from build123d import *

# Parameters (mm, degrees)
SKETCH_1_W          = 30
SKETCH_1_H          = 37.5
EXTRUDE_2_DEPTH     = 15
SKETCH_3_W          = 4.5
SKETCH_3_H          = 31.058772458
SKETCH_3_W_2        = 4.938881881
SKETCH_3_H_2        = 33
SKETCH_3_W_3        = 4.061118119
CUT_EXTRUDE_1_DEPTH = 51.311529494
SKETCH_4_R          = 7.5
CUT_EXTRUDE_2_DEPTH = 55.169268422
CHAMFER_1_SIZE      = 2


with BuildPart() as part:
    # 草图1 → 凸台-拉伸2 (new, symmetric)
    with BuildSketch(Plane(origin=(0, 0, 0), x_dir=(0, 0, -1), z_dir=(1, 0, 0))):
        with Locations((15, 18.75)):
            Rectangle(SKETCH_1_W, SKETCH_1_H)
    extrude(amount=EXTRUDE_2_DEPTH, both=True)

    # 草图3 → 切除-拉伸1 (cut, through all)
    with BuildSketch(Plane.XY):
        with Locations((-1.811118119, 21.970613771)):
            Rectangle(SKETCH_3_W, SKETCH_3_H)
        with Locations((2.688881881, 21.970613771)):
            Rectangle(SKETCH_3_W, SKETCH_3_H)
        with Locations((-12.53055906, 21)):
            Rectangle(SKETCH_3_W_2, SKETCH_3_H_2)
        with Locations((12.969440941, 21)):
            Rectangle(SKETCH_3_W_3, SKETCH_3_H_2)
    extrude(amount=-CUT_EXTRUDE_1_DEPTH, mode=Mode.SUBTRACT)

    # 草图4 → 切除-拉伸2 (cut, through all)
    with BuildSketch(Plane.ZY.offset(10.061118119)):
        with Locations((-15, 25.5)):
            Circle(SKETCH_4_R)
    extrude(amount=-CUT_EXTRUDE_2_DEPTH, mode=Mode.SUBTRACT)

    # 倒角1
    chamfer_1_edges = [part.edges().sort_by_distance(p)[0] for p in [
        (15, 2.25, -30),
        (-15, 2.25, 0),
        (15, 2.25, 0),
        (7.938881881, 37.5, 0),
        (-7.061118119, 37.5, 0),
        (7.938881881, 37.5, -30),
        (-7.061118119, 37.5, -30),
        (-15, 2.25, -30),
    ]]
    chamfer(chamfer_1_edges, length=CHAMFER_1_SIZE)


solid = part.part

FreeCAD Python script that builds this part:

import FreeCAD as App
import Part
import Sketcher


def edges_at(feature, points):
    """Names of the edges that pass closest to the given points."""
    edges = feature.Shape.Edges
    near = lambda p: min(range(len(edges)), key=lambda i: edges[i].distToShape(Part.Vertex(*p))[0])
    return sorted({f"Edge{near(p) + 1}" for p in points})


def add_polygon(sketch, points):
    """Adds a closed chain of lines whose ends are joined by coincident constraints."""
    first, n = sketch.GeometryCount, len(points)
    for a, b in zip(points, points[1:] + points[:1]):
        sketch.addGeometry(Part.LineSegment(App.Vector(*a, 0), App.Vector(*b, 0)), False)
    for i in range(n):
        sketch.addConstraint(Sketcher.Constraint("Coincident", first + i, 2, first + (i + 1) % n, 1))

doc = App.newDocument("Part")
params = doc.addObject("Spreadsheet::Sheet", "Params")
for row, (alias, value) in enumerate([
    ("sketch1_height", "30 mm"),
    ("sketch1_width", "37.5 mm"),
    ("pad1_length", "30 mm"),
    ("sketch2_width", "9 mm"),
    ("sketch2_height", "33 mm"),
    ("sketch3_diameter", "15 mm"),
    ("chamfer_size", "2 mm"),
], start=1):
    params.set(f"A{row}", alias)
    params.set(f"B{row}", "=" + value)
    params.setAlias(f"B{row}", alias)

body = doc.addObject("PartDesign::Body", "Body")

sketch1 = body.newObject("Sketcher::SketchObject", "Sketch")
sketch1.AttachmentSupport = (doc.getObject("YZ_Plane"), [""])
sketch1.MapMode = "FlatFace"
add_polygon(sketch1, [(38, 0), (0, 0), (0, -30), (38, -30)])
sketch1.addConstraint([
    Sketcher.Constraint("Horizontal", 0),
    Sketcher.Constraint("Vertical", 1),
    Sketcher.Constraint("Horizontal", 2),
    Sketcher.Constraint("Vertical", 3),
    Sketcher.Constraint("Coincident", 0, 2, -1, 1),
    Sketcher.Constraint("DistanceY", 1, 2, 1, 1, 30.0),
    Sketcher.Constraint("DistanceX", 0, 2, 0, 1, 37.5),
])
sketch1.setExpression("Constraints[9]", "Params.sketch1_height")
sketch1.setExpression("Constraints[10]", "Params.sketch1_width")
pad1 = body.newObject("PartDesign::Pad", "Pad")
pad1.Profile = sketch1
pad1.setExpression("Length", "Params.pad1_length")
pad1.Midplane = True

sketch2 = body.newObject("Sketcher::SketchObject", "Sketch001")
sketch2.AttachmentSupport = (doc.getObject("XY_Plane"), [""])
sketch2.MapMode = "FlatFace"
add_polygon(sketch2, [(-4.1, 37.5), (-4.1, 6.4), (4.9, 6.4), (4.9, 37.5)])
add_polygon(sketch2, [(-15, 37.5), (-15, 4.5), (-10.1, 4.5), (-10.1, 37.5)])
add_polygon(sketch2, [(10.9, 37.5), (10.9, 4.5), (15, 4.5), (15, 37.5)])
sketch2.addConstraint([
    Sketcher.Constraint("Vertical", 0),
    Sketcher.Constraint("Horizontal", 1),
    Sketcher.Constraint("Vertical", 2),
    Sketcher.Constraint("Horizontal", 3),
    Sketcher.Constraint("Vertical", 4),
    Sketcher.Constraint("Horizontal", 5),
    Sketcher.Constraint("Vertical", 6),
    Sketcher.Constraint("Horizontal", 7),
    Sketcher.Constraint("Vertical", 8),
    Sketcher.Constraint("Horizontal", 9),
    Sketcher.Constraint("Vertical", 10),
    Sketcher.Constraint("Horizontal", 11),
    Sketcher.Constraint("Symmetric", 4, 2, 9, 2, -2),
    Sketcher.Constraint("Horizontal", 3, 2, 6, 2),
    Sketcher.Constraint("Horizontal", 7, 2, 10, 2),
    Sketcher.Constraint("DistanceX", 1, 1, 1, 2, 9.0),
    Sketcher.Constraint("DistanceY", 4, 2, 4, 1, 33.0),
    Sketcher.Constraint("DistanceX", 4, 2, -1, 1, 15.0),
    Sketcher.Constraint("DistanceX", 5, 2, 0, 2, 6.0),
    Sketcher.Constraint("DistanceX", 1, 2, 8, 2, 6.0),
    Sketcher.Constraint("DistanceY", -1, 1, 2, 2, 37.5),
    Sketcher.Constraint("DistanceX", 5, 1, 5, 2, 4.938882),
    Sketcher.Constraint("DistanceY", 0, 2, 0, 1, 31.058772),
])
sketch2.setExpression("Constraints[27]", "Params.sketch2_width")
sketch2.setExpression("Constraints[28]", "Params.sketch2_height")
pocket1 = body.newObject("PartDesign::Pocket", "Pocket")
pocket1.Profile = sketch2
pocket1.Type = "ThroughAll"

sketch3 = body.newObject("Sketcher::SketchObject", "Sketch002")
sketch3.AttachmentSupport = (doc.getObject("YZ_Plane"), [""])
sketch3.MapMode = "FlatFace"
sketch3.AttachmentOffset = App.Placement(App.Vector(0, 0, -10.061118), App.Rotation())
sketch3.addGeometry(Part.Circle(App.Vector(26, -15, 0), App.Vector(0, 0, 1), 8), False)
sketch3.addConstraint([
    Sketcher.Constraint("Diameter", 0, 15.0),
    Sketcher.Constraint("DistanceY", 0, 3, -1, 1, 15.0),
    Sketcher.Constraint("DistanceX", -1, 1, 0, 3, 25.5),
])
sketch3.setExpression("Constraints[0]", "Params.sketch3_diameter")
pocket2 = body.newObject("PartDesign::Pocket", "Pocket001")
pocket2.Profile = sketch3
pocket2.Type = "ThroughAll"
pocket2.Reversed = True
doc.recompute()

chamfer = body.newObject("PartDesign::Chamfer", "Chamfer")
chamfer.Base = (pocket2, edges_at(pocket2, [
    (15, 2.25, -30),
    (-15, 2.25, 0),
    (15, 2.25, 0),
    (7.939, 37.5, 0),
    (-7.061, 37.5, 0),
    (7.939, 37.5, -30),
    (-7.061, 37.5, -30),
    (-15, 2.25, -30),
]))
chamfer.setExpression("Size", "Params.chamfer_size")

doc.recompute()
